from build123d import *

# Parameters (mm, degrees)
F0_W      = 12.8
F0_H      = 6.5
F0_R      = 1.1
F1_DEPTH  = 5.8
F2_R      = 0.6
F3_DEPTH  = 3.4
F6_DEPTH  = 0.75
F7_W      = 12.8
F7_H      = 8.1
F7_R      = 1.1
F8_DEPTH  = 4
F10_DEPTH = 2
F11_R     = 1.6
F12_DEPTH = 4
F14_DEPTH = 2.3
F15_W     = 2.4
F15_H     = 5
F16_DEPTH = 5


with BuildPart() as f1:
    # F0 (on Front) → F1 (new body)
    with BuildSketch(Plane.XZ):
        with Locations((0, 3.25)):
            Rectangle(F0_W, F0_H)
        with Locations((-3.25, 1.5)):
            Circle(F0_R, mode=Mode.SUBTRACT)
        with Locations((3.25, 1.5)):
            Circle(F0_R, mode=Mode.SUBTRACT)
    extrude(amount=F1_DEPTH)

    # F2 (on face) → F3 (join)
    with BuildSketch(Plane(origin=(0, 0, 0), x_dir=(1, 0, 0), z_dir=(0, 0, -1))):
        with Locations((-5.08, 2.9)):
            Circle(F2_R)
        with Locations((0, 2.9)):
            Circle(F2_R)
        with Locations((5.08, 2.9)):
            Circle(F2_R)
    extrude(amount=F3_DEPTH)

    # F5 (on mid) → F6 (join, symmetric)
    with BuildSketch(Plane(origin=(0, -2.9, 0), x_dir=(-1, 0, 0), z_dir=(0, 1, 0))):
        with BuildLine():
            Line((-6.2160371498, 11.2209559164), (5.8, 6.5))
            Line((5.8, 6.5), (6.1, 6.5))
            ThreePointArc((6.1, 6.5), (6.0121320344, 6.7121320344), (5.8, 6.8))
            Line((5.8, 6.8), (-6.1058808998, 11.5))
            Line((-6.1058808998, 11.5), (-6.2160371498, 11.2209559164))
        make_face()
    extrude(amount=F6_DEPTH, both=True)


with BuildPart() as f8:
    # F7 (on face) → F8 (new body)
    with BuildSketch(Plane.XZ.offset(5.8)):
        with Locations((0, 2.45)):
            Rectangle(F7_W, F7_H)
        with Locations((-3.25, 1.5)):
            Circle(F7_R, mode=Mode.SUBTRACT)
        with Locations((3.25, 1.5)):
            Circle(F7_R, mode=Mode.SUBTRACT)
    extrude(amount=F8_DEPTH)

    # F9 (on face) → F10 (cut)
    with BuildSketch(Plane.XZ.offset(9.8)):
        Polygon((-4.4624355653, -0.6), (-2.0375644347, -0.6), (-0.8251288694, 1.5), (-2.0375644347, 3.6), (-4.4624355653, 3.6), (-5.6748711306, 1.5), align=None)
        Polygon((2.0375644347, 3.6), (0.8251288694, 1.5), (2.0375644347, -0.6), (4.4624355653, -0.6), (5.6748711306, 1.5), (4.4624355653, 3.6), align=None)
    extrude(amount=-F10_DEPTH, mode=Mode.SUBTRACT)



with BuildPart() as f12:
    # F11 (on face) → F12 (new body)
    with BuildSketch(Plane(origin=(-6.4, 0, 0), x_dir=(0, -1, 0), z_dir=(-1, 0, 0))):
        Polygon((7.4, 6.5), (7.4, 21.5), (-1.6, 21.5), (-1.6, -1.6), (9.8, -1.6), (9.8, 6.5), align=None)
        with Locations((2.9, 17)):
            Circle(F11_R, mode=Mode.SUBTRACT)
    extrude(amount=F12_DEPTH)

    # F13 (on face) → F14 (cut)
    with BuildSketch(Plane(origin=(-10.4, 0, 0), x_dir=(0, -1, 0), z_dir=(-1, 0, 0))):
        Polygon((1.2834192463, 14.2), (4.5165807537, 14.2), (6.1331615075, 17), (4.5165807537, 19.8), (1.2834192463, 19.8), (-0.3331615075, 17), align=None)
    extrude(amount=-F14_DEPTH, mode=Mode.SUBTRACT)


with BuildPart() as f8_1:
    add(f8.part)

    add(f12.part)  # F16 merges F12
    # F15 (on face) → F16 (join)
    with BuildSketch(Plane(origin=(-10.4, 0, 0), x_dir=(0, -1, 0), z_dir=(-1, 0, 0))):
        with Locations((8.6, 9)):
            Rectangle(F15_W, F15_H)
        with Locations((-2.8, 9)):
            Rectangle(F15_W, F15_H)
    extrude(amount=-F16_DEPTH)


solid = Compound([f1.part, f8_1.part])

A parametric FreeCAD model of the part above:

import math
import FreeCAD as App
import Part
import Sketcher
from FreeCAD import Vector
Q = App.Units.Quantity

doc = App.newDocument("Part")
params = doc.addObject("Spreadsheet::Sheet", "Params")
for row, (alias, value) in enumerate([
    ("sketch1_diameter", "2.2 mm"),
    ("sketch1_width", "12.8 mm"),
    ("sketch1_height", "6.5 mm"),
    ("pad1_length", "5.8 mm"),
    ("sketch2_diameter", "1.2 mm"),
    ("pad2_length", "3.4 mm"),
    ("sketch3_radius", "0.3 mm"),
    ("sketch3_length", "12.8 mm"),
    ("sketch3_length2", "0.3 mm"),
    ("pad3_length", "1.5 mm"),
    ("sketch4_diameter", "2.2 mm"),
    ("sketch4_width", "12.8 mm"),
    ("sketch4_height", "8.1 mm"),
    ("pad4_length", "4 mm"),
    ("pocket1_length", "2 mm"),
    ("sketch6_diameter", "3.2 mm"),
    ("sketch6_width", "9 mm"),
    ("sketch6_height", "15 mm"),
    ("sketch6_width2", "11.4 mm"),
    ("sketch6_height2", "23.1 mm"),
    ("pad5_length", "4 mm"),
    ("pocket2_length", "2.3 mm"),
    ("sketch8_height", "5 mm"),
    ("sketch8_width", "2.4 mm"),
    ("pad6_length", "5 mm"),
], start=1):
    params.set(f"A{row}", alias)
    params.set(f"B{row}", "=" + value)
    params.setAlias(f"B{row}", alias)

body = doc.addObject("PartDesign::Body", "Body")

sketch1 = doc.addObject("Sketcher::SketchObject", "Sketch")
body.addObject(sketch1)
sketch1.AttachmentSupport = (doc.XZ_Plane, [""])
sketch1.MapMode = "FlatFace"
sketch1.addGeometry([
    Part.LineSegment(Vector(-6.4, 6.5, 0), Vector(-6.4, 0, 0)),
    Part.LineSegment(Vector(-6.4, 0, 0), Vector(6.4, 0, 0)),
    Part.LineSegment(Vector(6.4, 0, 0), Vector(6.4, 6.5, 0)),
    Part.LineSegment(Vector(6.4, 6.5, 0), Vector(-6.4, 6.5, 0)),
    Part.Circle(Vector(-3.2, 1.5, 0), Vector(0, 0, 1), 1.1),
    Part.Circle(Vector(3.2, 1.5, 0), Vector(0, 0, 1), 1.1),
], False)
sketch1.addConstraint([
    Sketcher.Constraint("Coincident", 0, 2, 1, 1),
    Sketcher.Constraint("Coincident", 1, 2, 2, 1),
    Sketcher.Constraint("Coincident", 2, 2, 3, 1),
    Sketcher.Constraint("Coincident", 3, 2, 0, 1),
    Sketcher.Constraint("Vertical", 0),
    Sketcher.Constraint("Horizontal", 1),
    Sketcher.Constraint("Vertical", 2),
    Sketcher.Constraint("Horizontal", 3),
    Sketcher.Constraint("Equal", 4, 5),
    Sketcher.Constraint("Symmetric", 0, 2, 1, 2, -1, 1),
    Sketcher.Constraint("Symmetric", 4, 3, 5, 3, -2),
    Sketcher.Constraint("Diameter", 4, Q("2.2 mm")),
    Sketcher.Constraint("DistanceX", 1, 1, 1, 2, Q("12.8 mm")),
    Sketcher.Constraint("DistanceY", 0, 2, 0, 1, Q("6.5 mm")),
    Sketcher.Constraint("DistanceY", 5, 3, 2, 2, Q("5 mm")),
    Sketcher.Constraint("DistanceX", 4, 3, 5, 3, Q("6.5 mm")),
])
sketch1.setExpression("Constraints[11]", "Params.sketch1_diameter")
sketch1.setExpression("Constraints[12]", "Params.sketch1_width")
sketch1.setExpression("Constraints[13]", "Params.sketch1_height")
pad1 = doc.addObject("PartDesign::Pad", "Pad")
body.addObject(pad1)
pad1.Profile = sketch1
pad1.setExpression("Length", "Params.pad1_length")

sketch2 = doc.addObject("Sketcher::SketchObject", "Sketch001")
body.addObject(sketch2)
sketch2.AttachmentSupport = (doc.XY_Plane, [""])
sketch2.MapMode = "FlatFace"
sketch2.addGeometry([
    Part.Circle(Vector(-5.1, -2.9, 0), Vector(0, 0, 1), 0.6),
    Part.Circle(Vector(0, -2.9, 0), Vector(0, 0, 1), 0.6),
    Part.Circle(Vector(5.1, -2.9, 0), Vector(0, 0, 1), 0.6),
], False)
sketch2.addConstraint([
    Sketcher.Constraint("Equal", 0, 1),
    Sketcher.Constraint("Equal", 1, 2),
    Sketcher.Constraint("Symmetric", 0, 3, 2, 3, -2),
    Sketcher.Constraint("PointOnObject", 1, 3, -2),
    Sketcher.Constraint("Horizontal", 0, 3, 1, 3),
    Sketcher.Constraint("Diameter", 0, Q("1.2 mm")),
    Sketcher.Constraint("DistanceY", 0, 3, -1, 1, Q("2.9 mm")),
    Sketcher.Constraint("DistanceX", 0, 3, -1, 1, Q("5.08 mm")),
])
sketch2.setExpression("Constraints[5]", "Params.sketch2_diameter")
pad2 = doc.addObject("PartDesign::Pad", "Pad001")
body.addObject(pad2)
pad2.Profile = sketch2
pad2.setExpression("Length", "Params.pad2_length")
pad2.Reversed = True

sketch3 = doc.addObject("Sketcher::SketchObject", "Sketch002")
body.addObject(sketch3)
sketch3.AttachmentSupport = (doc.XZ_Plane, [""])
sketch3.MapMode = "FlatFace"
sketch3.AttachmentOffset = App.Placement(Vector(0, 0, 2.9), App.Rotation())
sketch3.addGeometry([
    Part.LineSegment(Vector(6.22, 11.22, 0), Vector(-5.8, 6.5, 0)),
    Part.LineSegment(Vector(-5.8, 6.5, 0), Vector(-6.1, 6.5, 0)),
    Part.ArcOfCircle(Part.Circle(Vector(-5.8, 6.5, 0), Vector(0, 0, 1), 0.3), math.radians(90), math.radians(180)),
    Part.LineSegment(Vector(-5.8, 6.8, 0), Vector(6.11, 11.5, 0)),
    Part.LineSegment(Vector(6.11, 11.5, 0), Vector(6.22, 11.22, 0)),
], False)
sketch3.addConstraint([
    Sketcher.Constraint("Coincident", 0, 2, 1, 1),
    Sketcher.Constraint("Coincident", 1, 2, 2, 2),
    Sketcher.Constraint("Coincident", 2, 1, 3, 1),
    Sketcher.Constraint("Coincident", 3, 2, 4, 1),
    Sketcher.Constraint("Coincident", 4, 2, 0, 1),
    Sketcher.Constraint("Horizontal", 1),
    Sketcher.Constraint("Coincident", 0, 2, 2, 3),
    Sketcher.Constraint("Perpendicular", 3, 4),
    Sketcher.Constraint("Vertical", 0, 2, 2, 1),
    Sketcher.Constraint("Radius", 2, Q("0.3 mm")),
    Sketcher.Constraint("DistanceY", 2, 3, 3, 2, Q("5 mm")),
    Sketcher.Constraint("Distance", 3, Q("12.8 mm")),
    Sketcher.Constraint("Distance", 4, Q("0.3 mm")),
    Sketcher.Constraint("DistanceX", 2, 3, -1, 1, Q("5.8 mm")),
    Sketcher.Constraint("DistanceY", -1, 1, 2, 3, Q("6.5 mm")),
])
sketch3.setExpression("Constraints[9]", "Params.sketch3_radius")
sketch3.setExpression("Constraints[11]", "Params.sketch3_length")
sketch3.setExpression("Constraints[12]", "Params.sketch3_length2")
pad3 = doc.addObject("PartDesign::Pad", "Pad002")
body.addObject(pad3)
pad3.Profile = sketch3
pad3.setExpression("Length", "Params.pad3_length")
pad3.Midplane = True
body2 = doc.addObject("PartDesign::Body", "Body001")

sketch4 = doc.addObject("Sketcher::SketchObject", "Sketch003")
body2.addObject(sketch4)
sketch4.AttachmentSupport = (doc.getObject("XZ_Plane001"), [""])
sketch4.MapMode = "FlatFace"
sketch4.AttachmentOffset = App.Placement(Vector(0, 0, 5.8), App.Rotation())
sketch4.addGeometry([
    Part.LineSegment(Vector(-6.4, 6.5, 0), Vector(-6.4, -1.6, 0)),
    Part.LineSegment(Vector(-6.4, -1.6, 0), Vector(6.4, -1.6, 0)),
    Part.LineSegment(Vector(6.4, -1.6, 0), Vector(6.4, 6.5, 0)),
    Part.LineSegment(Vector(6.4, 6.5, 0), Vector(-6.4, 6.5, 0)),
    Part.Circle(Vector(-3.2, 1.5, 0), Vector(0, 0, 1), 1.1),
    Part.Circle(Vector(3.2, 1.5, 0), Vector(0, 0, 1), 1.1),
], False)
sketch4.addConstraint([
    Sketcher.Constraint("Coincident", 0, 2, 1, 1),
    Sketcher.Constraint("Coincident", 1, 2, 2, 1),
    Sketcher.Constraint("Coincident", 2, 2, 3, 1),
    Sketcher.Constraint("Coincident", 3, 2, 0, 1),
    Sketcher.Constraint("Vertical", 0),
    Sketcher.Constraint("Horizontal", 1),
    Sketcher.Constraint("Vertical", 2),
    Sketcher.Constraint("Horizontal", 3),
    Sketcher.Constraint("Equal", 4, 5),
    Sketcher.Constraint("Symmetric", 4, 3, 5, 3, -2),
    Sketcher.Constraint("Diameter", 4, Q("2.2 mm")),
    Sketcher.Constraint("DistanceX", 1, 1, 1, 2, Q("12.8 mm")),
    Sketcher.Constraint("DistanceY", 0, 2, 0, 1, Q("8.1 mm")),
    Sketcher.Constraint("DistanceY", 5, 3, 2, 2, Q("5 mm")),
    Sketcher.Constraint("DistanceY", -1, 1, 4, 3, Q("1.5 mm")),
    Sketcher.Constraint("DistanceX", 0, 2, -1, 1, Q("6.4 mm")),
    Sketcher.Constraint("DistanceX", 4, 3, 5, 3, Q("6.5 mm")),
])
sketch4.setExpression("Constraints[10]", "Params.sketch4_diameter")
sketch4.setExpression("Constraints[11]", "Params.sketch4_width")
sketch4.setExpression("Constraints[12]", "Params.sketch4_height")
pad4 = doc.addObject("PartDesign::Pad", "Pad003")
body2.addObject(pad4)
pad4.Profile = sketch4
pad4.setExpression("Length", "Params.pad4_length")

sketch5 = doc.addObject("Sketcher::SketchObject", "Sketch004")
body2.addObject(sketch5)
sketch5.AttachmentSupport = (doc.getObject("XZ_Plane001"), [""])
sketch5.MapMode = "FlatFace"
sketch5.AttachmentOffset = App.Placement(Vector(0, 0, 9.8), App.Rotation())
sketch5.addGeometry([
    Part.LineSegment(Vector(-4.5, -0.6, 0), Vector(-2, -0.6, 0)),
    Part.LineSegment(Vector(-2, -0.6, 0), Vector(-0.8, 1.5, 0)),
    Part.LineSegment(Vector(-0.8, 1.5, 0), Vector(-2, 3.6, 0)),
    Part.LineSegment(Vector(-2, 3.6, 0), Vector(-4.5, 3.6, 0)),
    Part.LineSegment(Vector(-4.5, 3.6, 0), Vector(-5.7, 1.5, 0)),
    Part.LineSegment(Vector(-5.7, 1.5, 0), Vector(-4.5, -0.6, 0)),
    Part.LineSegment(Vector(2, 3.6, 0), Vector(0.8, 1.5, 0)),
    Part.LineSegment(Vector(0.8, 1.5, 0), Vector(2, -0.6, 0)),
    Part.LineSegment(Vector(2, -0.6, 0), Vector(4.5, -0.6, 0)),
    Part.LineSegment(Vector(4.5, -0.6, 0), Vector(5.7, 1.5, 0)),
    Part.LineSegment(Vector(5.7, 1.5, 0), Vector(4.5, 3.6, 0)),
    Part.LineSegment(Vector(4.5, 3.6, 0), Vector(2, 3.6, 0)),
], False)
sketch5.addConstraint([
    Sketcher.Constraint("Coincident", 0, 2, 1, 1),
    Sketcher.Constraint("Coincident", 1, 2, 2, 1),
    Sketcher.Constraint("Coincident", 2, 2, 3, 1),
    Sketcher.Constraint("Coincident", 3, 2, 4, 1),
    Sketcher.Constraint("Coincident", 4, 2, 5, 1),
    Sketcher.Constraint("Coincident", 5, 2, 0, 1),
    Sketcher.Constraint("Coincident", 6, 2, 7, 1),
    Sketcher.Constraint("Coincident", 7, 2, 8, 1),
    Sketcher.Constraint("Coincident", 8, 2, 9, 1),
    Sketcher.Constraint("Coincident", 9, 2, 10, 1),
    Sketcher.Constraint("Coincident", 10, 2, 11, 1),
    Sketcher.Constraint("Coincident", 11, 2, 6, 1),
    Sketcher.Constraint("Horizontal", 0),
    Sketcher.Constraint("Horizontal", 3),
    Sketcher.Constraint("Horizontal", 8),
    Sketcher.Constraint("Horizontal", 11),
    Sketcher.Constraint("Symmetric", 1, 2, 6, 2, -2),
    Sketcher.Constraint("Symmetric", 0, 2, 7, 2, -2),
    Sketcher.Constraint("Symmetric", 4, 2, 9, 2, -2),
    Sketcher.Constraint("Symmetric", 3, 2, 10, 2, -2),
    Sketcher.Constraint("Parallel", 1, 4),
    Sketcher.Constraint("Parallel", 2, 5),
    Sketcher.Constraint("Parallel", 4, 6),
    Sketcher.Constraint("Parallel", 5, 7),
    Sketcher.Constraint("Parallel", 6, 9),
    Sketcher.Constraint("Horizontal", 1, 2, 4, 2),
    Sketcher.Constraint("Vertical", 0, 2, 2, 2),
    Sketcher.Constraint("Angle", 1, Q("60 deg")),
    Sketcher.Constraint("DistanceY", 0, 2, -1, 1, Q("0.6 mm")),
    Sketcher.Constraint("DistanceY", -1, 1, 1, 2, Q("1.5 mm")),
    Sketcher.Constraint("DistanceX", 5, 2, 7, 2, Q("6.5 mm")),
    Sketcher.Constraint("DistanceX", 0, 1, 0, 2, Q("2.424871 mm")),
])
pocket1 = doc.addObject("PartDesign::Pocket", "Pocket")
body2.addObject(pocket1)
pocket1.Profile = sketch5
pocket1.setExpression("Length", "Params.pocket1_length")
body3 = doc.addObject("PartDesign::Body", "Body002")

sketch6 = doc.addObject("Sketcher::SketchObject", "Sketch005")
body3.addObject(sketch6)
sketch6.AttachmentSupport = (doc.getObject("YZ_Plane002"), [""])
sketch6.MapMode = "FlatFace"
sketch6.AttachmentOffset = App.Placement(Vector(0, 0, -6.4), App.Rotation())
sketch6.addGeometry([
    Part.LineSegment(Vector(-7.4, 6.5, 0), Vector(-7.4, 21.5, 0)),
    Part.LineSegment(Vector(-7.4, 21.5, 0), Vector(1.6, 21.5, 0)),
    Part.LineSegment(Vector(1.6, 21.5, 0), Vector(1.6, -1.6, 0)),
    Part.LineSegment(Vector(1.6, -1.6, 0), Vector(-9.8, -1.6, 0)),
    Part.LineSegment(Vector(-9.8, -1.6, 0), Vector(-9.8, 6.5, 0)),
    Part.LineSegment(Vector(-9.8, 6.5, 0), Vector(-7.4, 6.5, 0)),
    Part.Circle(Vector(-2.9, 17, 0), Vector(0, 0, 1), 1.6),
], False)
sketch6.addConstraint([
    Sketcher.Constraint("Coincident", 0, 2, 1, 1),
    Sketcher.Constraint("Coincident", 1, 2, 2, 1),
    Sketcher.Constraint("Coincident", 2, 2, 3, 1),
    Sketcher.Constraint("Coincident", 3, 2, 4, 1),
    Sketcher.Constraint("Coincident", 4, 2, 5, 1),
    Sketcher.Constraint("Coincident", 5, 2, 0, 1),
    Sketcher.Constraint("Vertical", 0),
    Sketcher.Constraint("Horizontal", 1),
    Sketcher.Constraint("Vertical", 2),
    Sketcher.Constraint("Horizontal", 3),
    Sketcher.Constraint("Vertical", 4),
    Sketcher.Constraint("Horizontal", 5),
    Sketcher.Constraint("Diameter", 6, Q("3.2 mm")),
    Sketcher.Constraint("DistanceX", 1, 1, 1, 2, Q("9 mm")),
    Sketcher.Constraint("DistanceY", 0, 1, 0, 2, Q("15 mm")),
    Sketcher.Constraint("DistanceX", 3, 2, 3, 1, Q("11.4 mm")),
    Sketcher.Constraint("DistanceY", 2, 2, 2, 1, Q("23.1 mm")),
    Sketcher.Constraint("DistanceY", -1, 1, 6, 3, Q("17 mm")),
    Sketcher.Constraint("DistanceX", 6, 3, -1, 1, Q("2.9 mm")),
    Sketcher.Constraint("DistanceX", 0, 2, -1, 1, Q("7.4 mm")),
    Sketcher.Constraint("DistanceY", -1, 1, 0, 2, Q("21.5 mm")),
])
sketch6.setExpression("Constraints[12]", "Params.sketch6_diameter")
sketch6.setExpression("Constraints[13]", "Params.sketch6_width")
sketch6.setExpression("Constraints[14]", "Params.sketch6_height")
sketch6.setExpression("Constraints[15]", "Params.sketch6_width2")
sketch6.setExpression("Constraints[16]", "Params.sketch6_height2")
pad5 = doc.addObject("PartDesign::Pad", "Pad004")
body3.addObject(pad5)
pad5.Profile = sketch6
pad5.setExpression("Length", "Params.pad5_length")
pad5.Reversed = True

sketch7 = doc.addObject("Sketcher::SketchObject", "Sketch006")
body3.addObject(sketch7)
sketch7.AttachmentSupport = (doc.getObject("YZ_Plane002"), [""])
sketch7.MapMode = "FlatFace"
sketch7.AttachmentOffset = App.Placement(Vector(0, 0, -10.4), App.Rotation())
sketch7.addGeometry([
    Part.LineSegment(Vector(-1.3, 14.2, 0), Vector(-4.5, 14.2, 0)),
    Part.LineSegment(Vector(-4.5, 14.2, 0), Vector(-6.1, 17, 0)),
    Part.LineSegment(Vector(-6.1, 17, 0), Vector(-4.5, 19.8, 0)),
    Part.LineSegment(Vector(-4.5, 19.8, 0), Vector(-1.3, 19.8, 0)),
    Part.LineSegment(Vector(-1.3, 19.8, 0), Vector(0.3, 17, 0)),
    Part.LineSegment(Vector(0.3, 17, 0), Vector(-1.3, 14.2, 0)),
], False)
sketch7.addConstraint([
    Sketcher.Constraint("Coincident", 0, 2, 1, 1),
    Sketcher.Constraint("Coincident", 1, 2, 2, 1),
    Sketcher.Constraint("Coincident", 2, 2, 3, 1),
    Sketcher.Constraint("Coincident", 3, 2, 4, 1),
    Sketcher.Constraint("Coincident", 4, 2, 5, 1),
    Sketcher.Constraint("Coincident", 5, 2, 0, 1),
    Sketcher.Constraint("Horizontal", 0),
    Sketcher.Constraint("Horizontal", 3),
    Sketcher.Constraint("Parallel", 1, 4),
    Sketcher.Constraint("Parallel", 2, 5),
    Sketcher.Constraint("Horizontal", 1, 2, 4, 2),
    Sketcher.Constraint("Vertical", 0, 2, 2, 2),
    Sketcher.Constraint("Vertical", 3, 2, 5, 2),
    Sketcher.Constraint("Angle", 1, Q("120 deg")),
    Sketcher.Constraint("DistanceY", -1, 1, 1, 2, Q("17 mm")),
    Sketcher.Constraint("DistanceY", -1, 1, 0, 2, Q("14.2 mm")),
    Sketcher.Constraint("DistanceX", 0, 2, 0, 1, Q("3.233162 mm")),
    Sketcher.Constraint("DistanceX", 0, 2, -1, 1, Q("4.516581 mm")),
])
pocket2 = doc.addObject("PartDesign::Pocket", "Pocket001")
body3.addObject(pocket2)
pocket2.Profile = sketch7
pocket2.setExpression("Length", "Params.pocket2_length")
pocket2.Reversed = True
doc.recompute()

boolean = doc.addObject("PartDesign::Boolean", "Boolean")
body2.addObject(boolean)
boolean.Type = "Fuse"
boolean.addObjects([body3])

sketch8 = doc.addObject("Sketcher::SketchObject", "Sketch007")
body2.addObject(sketch8)
sketch8.AttachmentSupport = (doc.getObject("YZ_Plane001"), [""])
sketch8.MapMode = "FlatFace"
sketch8.AttachmentOffset = App.Placement(Vector(0, 0, -10.4), App.Rotation())
sketch8.addGeometry([
    Part.LineSegment(Vector(-7.4, 11.5, 0), Vector(-7.4, 6.5, 0)),
    Part.LineSegment(Vector(-7.4, 6.5, 0), Vector(-9.8, 6.5, 0)),
    Part.LineSegment(Vector(-9.8, 6.5, 0), Vector(-9.8, 11.5, 0)),
    Part.LineSegment(Vector(-9.8, 11.5, 0), Vector(-7.4, 11.5, 0)),
    Part.LineSegment(Vector(4, 11.5, 0), Vector(4, 6.5, 0)),
    Part.LineSegment(Vector(4, 6.5, 0), Vector(1.6, 6.5, 0)),
    Part.LineSegment(Vector(1.6, 6.5, 0), Vector(1.6, 11.5, 0)),
    Part.LineSegment(Vector(1.6, 11.5, 0), Vector(4, 11.5, 0)),
], False)
sketch8.addConstraint([
    Sketcher.Constraint("Coincident", 0, 2, 1, 1),
    Sketcher.Constraint("Coincident", 1, 2, 2, 1),
    Sketcher.Constraint("Coincident", 2, 2, 3, 1),
    Sketcher.Constraint("Coincident", 3, 2, 0, 1),
    Sketcher.Constraint("Coincident", 4, 2, 5, 1),
    Sketcher.Constraint("Coincident", 5, 2, 6, 1),
    Sketcher.Constraint("Coincident", 6, 2, 7, 1),
    Sketcher.Constraint("Coincident", 7, 2, 4, 1),
    Sketcher.Constraint("Vertical", 0),
    Sketcher.Constraint("Horizontal", 1),
    Sketcher.Constraint("Vertical", 2),
    Sketcher.Constraint("Horizontal", 3),
    Sketcher.Constraint("Vertical", 4),
    Sketcher.Constraint("Horizontal", 5),
    Sketcher.Constraint("Vertical", 6),
    Sketcher.Constraint("Horizontal", 7),
    Sketcher.Constraint("Horizontal", 1, 2, 4, 2),
    Sketcher.Constraint("Horizontal", 3, 2, 6, 2),
    Sketcher.Constraint("Equal", 3, 5),
    Sketcher.Constraint("DistanceY", 0, 2, 0, 1, Q("5 mm")),
    Sketcher.Constraint("DistanceX", 1, 2, 1, 1, Q("2.4 mm")),
    Sketcher.Constraint("DistanceX", -1, 1, 4, 2, Q("4 mm")),
    Sketcher.Constraint("DistanceX", 0, 2, 5, 2, Q("9 mm")),
    Sketcher.Constraint("DistanceY", -1, 1, 0, 2, Q("6.5 mm")),
])
sketch8.setExpression("Constraints[19]", "Params.sketch8_height")
sketch8.setExpression("Constraints[20]", "Params.sketch8_width")
pad6 = doc.addObject("PartDesign::Pad", "Pad005")
body2.addObject(pad6)
pad6.Profile = sketch8
pad6.setExpression("Length", "Params.pad6_length")

doc.recompute()
